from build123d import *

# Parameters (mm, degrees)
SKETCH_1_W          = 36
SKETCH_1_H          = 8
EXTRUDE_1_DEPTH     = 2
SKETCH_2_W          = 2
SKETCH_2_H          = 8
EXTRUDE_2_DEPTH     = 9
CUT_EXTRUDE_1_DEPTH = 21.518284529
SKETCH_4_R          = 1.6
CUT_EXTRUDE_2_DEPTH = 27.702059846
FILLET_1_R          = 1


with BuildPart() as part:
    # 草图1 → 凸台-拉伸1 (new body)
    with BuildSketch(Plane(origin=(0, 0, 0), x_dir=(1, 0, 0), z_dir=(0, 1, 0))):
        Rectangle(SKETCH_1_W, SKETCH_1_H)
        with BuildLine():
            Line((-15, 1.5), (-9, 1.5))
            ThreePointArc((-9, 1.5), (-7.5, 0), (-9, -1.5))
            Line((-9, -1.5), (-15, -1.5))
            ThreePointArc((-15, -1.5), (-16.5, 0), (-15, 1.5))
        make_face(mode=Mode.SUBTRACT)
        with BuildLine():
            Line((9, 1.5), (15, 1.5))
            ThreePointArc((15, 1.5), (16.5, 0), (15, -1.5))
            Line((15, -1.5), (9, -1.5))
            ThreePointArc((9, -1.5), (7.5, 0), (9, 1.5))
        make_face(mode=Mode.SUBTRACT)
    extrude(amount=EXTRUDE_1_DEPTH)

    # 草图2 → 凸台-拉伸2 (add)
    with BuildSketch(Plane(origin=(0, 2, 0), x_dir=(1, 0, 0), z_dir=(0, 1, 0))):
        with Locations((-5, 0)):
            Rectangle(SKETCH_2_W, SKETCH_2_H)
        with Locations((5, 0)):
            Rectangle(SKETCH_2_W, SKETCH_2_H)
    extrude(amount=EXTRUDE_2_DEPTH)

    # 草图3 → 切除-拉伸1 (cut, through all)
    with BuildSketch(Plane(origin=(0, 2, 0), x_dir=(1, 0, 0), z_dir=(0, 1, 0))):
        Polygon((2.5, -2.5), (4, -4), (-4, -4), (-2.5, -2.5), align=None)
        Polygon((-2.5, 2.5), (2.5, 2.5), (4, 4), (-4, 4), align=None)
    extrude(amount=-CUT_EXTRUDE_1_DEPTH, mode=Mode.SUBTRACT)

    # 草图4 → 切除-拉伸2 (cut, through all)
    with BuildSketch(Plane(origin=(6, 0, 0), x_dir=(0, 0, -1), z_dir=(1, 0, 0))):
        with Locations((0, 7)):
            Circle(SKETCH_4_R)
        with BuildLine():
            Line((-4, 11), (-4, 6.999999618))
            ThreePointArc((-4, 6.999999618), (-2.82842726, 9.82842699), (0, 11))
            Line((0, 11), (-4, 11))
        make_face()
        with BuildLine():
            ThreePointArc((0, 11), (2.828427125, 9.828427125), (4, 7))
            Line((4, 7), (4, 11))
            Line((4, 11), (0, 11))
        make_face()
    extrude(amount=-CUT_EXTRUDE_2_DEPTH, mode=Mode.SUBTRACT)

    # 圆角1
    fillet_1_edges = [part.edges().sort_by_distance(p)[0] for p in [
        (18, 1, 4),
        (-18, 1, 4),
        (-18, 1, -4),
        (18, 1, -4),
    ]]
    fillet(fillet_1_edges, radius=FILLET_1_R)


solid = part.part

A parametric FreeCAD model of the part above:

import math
import FreeCAD as App
import Part
import Sketcher

V = App.Vector
Q = App.Units.Quantity


def edges_at(feature, points):
    """Names of the edges that pass closest to the given points."""
    edges = feature.Shape.Edges
    near = lambda p: min(range(len(edges)), key=lambda i: edges[i].distToShape(Part.Vertex(*p))[0])
    return sorted({f"Edge{near(p) + 1}" for p in points})

doc = App.newDocument("Part")
body = doc.addObject("PartDesign::Body", "Body")

sketch1 = body.newObject("Sketcher::SketchObject", "Sketch")
sketch1.AttachmentSupport = (doc.getObject("XZ_Plane"), [""])
sketch1.MapMode = "FlatFace"
sketch1.addGeometry(Part.LineSegment(V(-18, -4, 0), V(-18, 4, 0)), False)
sketch1.addGeometry(Part.LineSegment(V(-18, 4, 0), V(18, 4, 0)), False)
sketch1.addGeometry(Part.LineSegment(V(18, 4, 0), V(18, -4, 0)), False)
sketch1.addGeometry(Part.LineSegment(V(18, -4, 0), V(-18, -4, 0)), False)
sketch1.addGeometry(Part.ArcOfCircle(Part.Circle(V(-15, 0, 0), V(0, 0, 1), 1.5), math.radians(90), math.radians(270)), False)
sketch1.addGeometry(Part.LineSegment(V(-15, -1.5, 0), V(-9, -1.5, 0)), False)
sketch1.addGeometry(Part.ArcOfCircle(Part.Circle(V(-9, 0, 0), V(0, 0, 1), 1.5), math.radians(-90), math.radians(90)), False)
sketch1.addGeometry(Part.LineSegment(V(-9, 1.5, 0), V(-15, 1.5, 0)), False)
sketch1.addGeometry(Part.ArcOfCircle(Part.Circle(V(9, 0, 0), V(0, 0, 1), 1.5), math.radians(90), math.radians(270)), False)
sketch1.addGeometry(Part.LineSegment(V(9, -1.5, 0), V(15, -1.5, 0)), False)
sketch1.addGeometry(Part.ArcOfCircle(Part.Circle(V(15, 0, 0), V(0, 0, 1), 1.5), math.radians(-90), math.radians(90)), False)
sketch1.addGeometry(Part.LineSegment(V(15, 1.5, 0), V(9, 1.5, 0)), False)
sketch1.addConstraint(Sketcher.Constraint("Coincident", 0, 2, 1, 1))
sketch1.addConstraint(Sketcher.Constraint("Coincident", 1, 2, 2, 1))
sketch1.addConstraint(Sketcher.Constraint("Coincident", 2, 2, 3, 1))
sketch1.addConstraint(Sketcher.Constraint("Coincident", 3, 2, 0, 1))
sketch1.addConstraint(Sketcher.Constraint("Tangent", 4, 2, 5, 1))
sketch1.addConstraint(Sketcher.Constraint("Tangent", 5, 2, 6, 1))
sketch1.addConstraint(Sketcher.Constraint("Tangent", 6, 2, 7, 1))
sketch1.addConstraint(Sketcher.Constraint("Tangent", 7, 2, 4, 1))
sketch1.addConstraint(Sketcher.Constraint("Tangent", 8, 2, 9, 1))
sketch1.addConstraint(Sketcher.Constraint("Tangent", 9, 2, 10, 1))
sketch1.addConstraint(Sketcher.Constraint("Tangent", 10, 2, 11, 1))
sketch1.addConstraint(Sketcher.Constraint("Tangent", 11, 2, 8, 1))
sketch1.addConstraint(Sketcher.Constraint("Vertical", 0))
sketch1.addConstraint(Sketcher.Constraint("Horizontal", 1))
sketch1.addConstraint(Sketcher.Constraint("Vertical", 2))
sketch1.addConstraint(Sketcher.Constraint("Horizontal", 3))
sketch1.addConstraint(Sketcher.Constraint("Horizontal", 5))
sketch1.addConstraint(Sketcher.Constraint("Horizontal", 7))
sketch1.addConstraint(Sketcher.Constraint("Horizontal", 9))
sketch1.addConstraint(Sketcher.Constraint("Horizontal", 11))
sketch1.addConstraint(Sketcher.Constraint("Equal", 6, 8))
sketch1.addConstraint(Sketcher.Constraint("Symmetric", 6, 3, 8, 3, -1, 1))
sketch1.addConstraint(Sketcher.Constraint("Symmetric", 0, 2, 2, 2, -1, 1))
sketch1.addConstraint(Sketcher.Constraint("Symmetric", 4, 3, 10, 3, -2))
sketch1.addConstraint(Sketcher.Constraint("Radius", 4, Q("1.5 mm")))
sketch1.addConstraint(Sketcher.Constraint("DistanceX", 1, 1, 1, 2, Q("36 mm")))
sketch1.addConstraint(Sketcher.Constraint("DistanceX", 5, 1, 5, 2, Q("6 mm")))
sketch1.addConstraint(Sketcher.Constraint("DistanceY", 0, 1, 0, 2, Q("8 mm")))
sketch1.addConstraint(Sketcher.Constraint("DistanceX", 4, 3, -1, 1, Q("15 mm")))
pad1 = body.newObject("PartDesign::Pad", "Pad")
pad1.Profile = sketch1
pad1.Length = 2
pad1.Reversed = True

sketch2 = body.newObject("Sketcher::SketchObject", "Sketch001")
sketch2.AttachmentSupport = (doc.getObject("XZ_Plane"), [""])
sketch2.MapMode = "FlatFace"
sketch2.AttachmentOffset = App.Placement(V(0, 0, -2), App.Rotation())
sketch2.addGeometry(Part.LineSegment(V(-6, -4, 0), V(-6, 4, 0)), False)
sketch2.addGeometry(Part.LineSegment(V(-6, 4, 0), V(-4, 4, 0)), False)
sketch2.addGeometry(Part.LineSegment(V(-4, 4, 0), V(-4, -4, 0)), False)
sketch2.addGeometry(Part.LineSegment(V(-4, -4, 0), V(-6, -4, 0)), False)
sketch2.addGeometry(Part.LineSegment(V(4, -4, 0), V(4, 4, 0)), False)
sketch2.addGeometry(Part.LineSegment(V(4, 4, 0), V(6, 4, 0)), False)
sketch2.addGeometry(Part.LineSegment(V(6, 4, 0), V(6, -4, 0)), False)
sketch2.addGeometry(Part.LineSegment(V(6, -4, 0), V(4, -4, 0)), False)
sketch2.addConstraint(Sketcher.Constraint("Coincident", 0, 2, 1, 1))
sketch2.addConstraint(Sketcher.Constraint("Coincident", 1, 2, 2, 1))
sketch2.addConstraint(Sketcher.Constraint("Coincident", 2, 2, 3, 1))
sketch2.addConstraint(Sketcher.Constraint("Coincident", 3, 2, 0, 1))
sketch2.addConstraint(Sketcher.Constraint("Coincident", 4, 2, 5, 1))
sketch2.addConstraint(Sketcher.Constraint("Coincident", 5, 2, 6, 1))
sketch2.addConstraint(Sketcher.Constraint("Coincident", 6, 2, 7, 1))
sketch2.addConstraint(Sketcher.Constraint("Coincident", 7, 2, 4, 1))
sketch2.addConstraint(Sketcher.Constraint("Vertical", 0))
sketch2.addConstraint(Sketcher.Constraint("Horizontal", 1))
sketch2.addConstraint(Sketcher.Constraint("Vertical", 2))
sketch2.addConstraint(Sketcher.Constraint("Horizontal", 3))
sketch2.addConstraint(Sketcher.Constraint("Vertical", 4))
sketch2.addConstraint(Sketcher.Constraint("Horizontal", 5))
sketch2.addConstraint(Sketcher.Constraint("Vertical", 6))
sketch2.addConstraint(Sketcher.Constraint("Horizontal", 7))
sketch2.addConstraint(Sketcher.Constraint("Symmetric", 2, 2, 4, 2, -1, 1))
sketch2.addConstraint(Sketcher.Constraint("Symmetric", 0, 2, 6, 2, -1, 1))
sketch2.addConstraint(Sketcher.Constraint("Horizontal", 1, 2, 4, 2))
sketch2.addConstraint(Sketcher.Constraint("DistanceX", 1, 1, 1, 2, Q("2 mm")))
sketch2.addConstraint(Sketcher.Constraint("DistanceY", 0, 1, 0, 2, Q("8 mm")))
sketch2.addConstraint(Sketcher.Constraint("DistanceX", 0, 2, -1, 1, Q("6 mm")))
pad2 = body.newObject("PartDesign::Pad", "Pad001")
pad2.Profile = sketch2
pad2.Length = 9
pad2.Reversed = True

sketch3 = body.newObject("Sketcher::SketchObject", "Sketch002")
sketch3.AttachmentSupport = (doc.getObject("XZ_Plane"), [""])
sketch3.MapMode = "FlatFace"
sketch3.AttachmentOffset = App.Placement(V(0, 0, -2), App.Rotation())
sketch3.addGeometry(Part.LineSegment(V(4, 4, 0), V(2.5, 2.5, 0)), False)
sketch3.addGeometry(Part.LineSegment(V(2.5, 2.5, 0), V(-2.5, 2.5, 0)), False)
sketch3.addGeometry(Part.LineSegment(V(-2.5, 2.5, 0), V(-4, 4, 0)), False)
sketch3.addGeometry(Part.LineSegment(V(-4, 4, 0), V(4, 4, 0)), False)
sketch3.addGeometry(Part.LineSegment(V(-2.5, -2.5, 0), V(2.5, -2.5, 0)), False)
sketch3.addGeometry(Part.LineSegment(V(2.5, -2.5, 0), V(4, -4, 0)), False)
sketch3.addGeometry(Part.LineSegment(V(4, -4, 0), V(-4, -4, 0)), False)
sketch3.addGeometry(Part.LineSegment(V(-4, -4, 0), V(-2.5, -2.5, 0)), False)
sketch3.addConstraint(Sketcher.Constraint("Coincident", 0, 2, 1, 1))
sketch3.addConstraint(Sketcher.Constraint("Coincident", 1, 2, 2, 1))
sketch3.addConstraint(Sketcher.Constraint("Coincident", 2, 2, 3, 1))
sketch3.addConstraint(Sketcher.Constraint("Coincident", 3, 2, 0, 1))
sketch3.addConstraint(Sketcher.Constraint("Coincident", 4, 2, 5, 1))
sketch3.addConstraint(Sketcher.Constraint("Coincident", 5, 2, 6, 1))
sketch3.addConstraint(Sketcher.Constraint("Coincident", 6, 2, 7, 1))
sketch3.addConstraint(Sketcher.Constraint("Coincident", 7, 2, 4, 1))
sketch3.addConstraint(Sketcher.Constraint("Horizontal", 1))
sketch3.addConstraint(Sketcher.Constraint("Horizontal", 3))
sketch3.addConstraint(Sketcher.Constraint("Horizontal", 4))
sketch3.addConstraint(Sketcher.Constraint("Horizontal", 6))
sketch3.addConstraint(Sketcher.Constraint("Symmetric", 1, 2, 4, 2, -1, 1))
sketch3.addConstraint(Sketcher.Constraint("Symmetric", 2, 2, 5, 2, -1, 1))
sketch3.addConstraint(Sketcher.Constraint("Perpendicular", 0, 2))
sketch3.addConstraint(Sketcher.Constraint("Perpendicular", 5, 7))
sketch3.addConstraint(Sketcher.Constraint("Vertical", 0, 2, 4, 2))
sketch3.addConstraint(Sketcher.Constraint("Vertical", 3, 2, 5, 2))
sketch3.addConstraint(Sketcher.Constraint("Vertical", 2, 2, 6, 2))
sketch3.addConstraint(Sketcher.Constraint("DistanceX", 1, 2, 1, 1, Q("5 mm")))
sketch3.addConstraint(Sketcher.Constraint("DistanceX", 3, 1, 3, 2, Q("8 mm")))
sketch3.addConstraint(Sketcher.Constraint("DistanceY", -1, 1, 2, 2, Q("4 mm")))
pocket1 = body.newObject("PartDesign::Pocket", "Pocket")
pocket1.Profile = sketch3
pocket1.Type = "ThroughAll"
pocket1.Reversed = True

sketch4 = body.newObject("Sketcher::SketchObject", "Sketch003")
sketch4.AttachmentSupport = (doc.getObject("YZ_Plane"), [""])
sketch4.MapMode = "FlatFace"
sketch4.AttachmentOffset = App.Placement(V(0, 0, 6), App.Rotation())
sketch4.addGeometry(Part.Circle(V(7, 0, 0), V(0, 0, 1), 1.6), False)
sketch4.addGeometry(Part.LineSegment(V(11, 4, 0), V(7, 4, 0)), False)
sketch4.addGeometry(Part.ArcOfCircle(Part.Circle(V(7, 0, 0), V(0, 0, 1), 4), math.radians(0), math.radians(90)), False)
sketch4.addGeometry(Part.LineSegment(V(11, 0, 0), V(11, 4, 0)), False)
sketch4.addGeometry(Part.ArcOfCircle(Part.Circle(V(7, 0, 0), V(0, 0, 1), 4), math.radians(-90), math.radians(0)), False)
sketch4.addGeometry(Part.LineSegment(V(7, -4, 0), V(11, -4, 0)), False)
sketch4.addGeometry(Part.LineSegment(V(11, -4, 0), V(11, 0, 0)), False)
sketch4.addConstraint(Sketcher.Constraint("Tangent", 1, 2, 2, 2))
sketch4.addConstraint(Sketcher.Constraint("Tangent", 2, 1, 3, 1))
sketch4.addConstraint(Sketcher.Constraint("Coincident", 3, 2, 1, 1))
sketch4.addConstraint(Sketcher.Constraint("Tangent", 4, 1, 5, 1))
sketch4.addConstraint(Sketcher.Constraint("Coincident", 5, 2, 6, 1))
sketch4.addConstraint(Sketcher.Constraint("Tangent", 6, 2, 4, 2))
sketch4.addConstraint(Sketcher.Constraint("Horizontal", 1))
sketch4.addConstraint(Sketcher.Constraint("Vertical", 3))
sketch4.addConstraint(Sketcher.Constraint("Horizontal", 5))
sketch4.addConstraint(Sketcher.Constraint("Vertical", 6))
sketch4.addConstraint(Sketcher.Constraint("Coincident", 2, 3, 0, 3))
sketch4.addConstraint(Sketcher.Constraint("Coincident", 4, 3, 0, 3))
sketch4.addConstraint(Sketcher.Constraint("Equal", 2, 4))
sketch4.addConstraint(Sketcher.Constraint("PointOnObject", 0, 3, -1))
sketch4.addConstraint(Sketcher.Constraint("Radius", 2, Q("4 mm")))
sketch4.addConstraint(Sketcher.Constraint("Diameter", 0, Q("3.2 mm")))
sketch4.addConstraint(Sketcher.Constraint("DistanceX", -1, 1, 0, 3, Q("7 mm")))
pocket2 = body.newObject("PartDesign::Pocket", "Pocket001")
pocket2.Profile = sketch4
pocket2.Type = "ThroughAll"
doc.recompute()

fillet = body.newObject("PartDesign::Fillet", "Fillet")
fillet.Base = (pocket2, edges_at(pocket2, [
    (18, 1, 4),
    (-18, 1, 4),
    (-18, 1, -4),
    (18, 1, -4),
]))
fillet.Radius = 1

doc.recompute()
